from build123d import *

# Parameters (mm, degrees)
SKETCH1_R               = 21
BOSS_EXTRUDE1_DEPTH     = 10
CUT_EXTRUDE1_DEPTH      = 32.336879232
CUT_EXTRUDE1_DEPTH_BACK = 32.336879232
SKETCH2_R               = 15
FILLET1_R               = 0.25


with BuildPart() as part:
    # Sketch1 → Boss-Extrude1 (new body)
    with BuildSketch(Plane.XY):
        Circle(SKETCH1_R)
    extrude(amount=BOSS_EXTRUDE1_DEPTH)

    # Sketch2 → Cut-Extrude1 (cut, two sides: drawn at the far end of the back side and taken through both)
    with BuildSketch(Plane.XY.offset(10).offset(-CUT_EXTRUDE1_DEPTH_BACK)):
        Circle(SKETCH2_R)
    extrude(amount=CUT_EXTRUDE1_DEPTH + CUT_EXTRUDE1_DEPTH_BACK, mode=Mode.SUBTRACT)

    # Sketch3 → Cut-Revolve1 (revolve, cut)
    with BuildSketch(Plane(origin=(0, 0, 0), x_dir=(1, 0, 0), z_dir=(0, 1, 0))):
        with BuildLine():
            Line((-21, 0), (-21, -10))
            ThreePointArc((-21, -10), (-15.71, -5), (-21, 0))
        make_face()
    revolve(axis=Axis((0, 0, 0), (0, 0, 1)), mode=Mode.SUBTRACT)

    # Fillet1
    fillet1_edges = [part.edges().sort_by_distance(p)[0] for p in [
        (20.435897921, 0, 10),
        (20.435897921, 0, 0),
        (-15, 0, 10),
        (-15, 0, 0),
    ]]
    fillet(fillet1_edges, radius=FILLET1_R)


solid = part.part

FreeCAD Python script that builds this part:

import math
import FreeCAD as App
import Part
import Sketcher
Q = App.Units.Quantity


def edges_at(feature, points):
    """Names of the edges that pass closest to the given points."""
    edges = feature.Shape.Edges
    near = lambda p: min(range(len(edges)), key=lambda i: edges[i].distToShape(Part.Vertex(*p))[0])
    return sorted({f"Edge{near(p) + 1}" for p in points})

doc = App.newDocument("Part")
body = doc.addObject("PartDesign::Body", "Body")

# Sketch on XY plane
sketch1 = body.newObject("Sketcher::SketchObject", "Sketch")
sketch1.AttachmentSupport = (doc.getObject("XY_Plane"), [""])
sketch1.MapMode = "FlatFace"
sketch1.addGeometry(Part.Circle(App.Vector(0, 0, 0), App.Vector(0, 0, 1), 21), False)
sketch1.addConstraint([
    Sketcher.Constraint("Coincident", 0, 3, -1, 1),
    Sketcher.Constraint("Diameter", 0, Q("42 mm")),
])
pad1 = body.newObject("PartDesign::Pad", "Pad")
pad1.Profile = sketch1
pad1.Length = 10

# Sketch on XY plane
sketch2 = body.newObject("Sketcher::SketchObject", "Sketch001")
sketch2.AttachmentSupport = (doc.getObject("XY_Plane"), [""])
sketch2.MapMode = "FlatFace"
sketch2.AttachmentOffset = App.Placement(App.Vector(0, 0, 10), App.Rotation())
sketch2.addGeometry(Part.Circle(App.Vector(0, 0, 0), App.Vector(0, 0, 1), 15), False)
sketch2.addConstraint([
    Sketcher.Constraint("Coincident", 0, 3, -1, 1),
    Sketcher.Constraint("Diameter", 0, Q("30 mm")),
])
pocket1 = body.newObject("PartDesign::Pocket", "Pocket")
pocket1.Profile = sketch2
pocket1.Type = "ThroughAll"
pocket1.Midplane = True

# Sketch on XZ plane
sketch3 = body.newObject("Sketcher::SketchObject", "Sketch002")
sketch3.AttachmentSupport = (doc.getObject("XZ_Plane"), [""])
sketch3.MapMode = "FlatFace"
sketch3.addGeometry([
    Part.LineSegment(App.Vector(-21, 0, 0), App.Vector(-21, 10, 0)),
    Part.ArcOfCircle(Part.Circle(App.Vector(-20.717949, 5, 0), App.Vector(0, 0, 1), 5.007949), math.radians(-93.228645), math.radians(93.228645)),
], False)
sketch3.addConstraint([
    Sketcher.Constraint("Coincident", 0, 1, 1, 1),
    Sketcher.Constraint("Coincident", 1, 2, 0, 2),
    Sketcher.Constraint("Vertical", 0),
    Sketcher.Constraint("PointOnObject", 0, 1, -1),
    Sketcher.Constraint("DistanceY", 0, 1, 0, 2, Q("10 mm")),
    Sketcher.Constraint("DistanceX", 0, 1, -1, 1, Q("21 mm")),
    Sketcher.Constraint("Radius", 1, Q("5.007949 mm")),
])
groove = body.newObject("PartDesign::Groove", "Groove")
groove.Profile = sketch3
groove.ReferenceAxis = (sketch3, ["V_Axis"])
groove.Angle = 360
doc.recompute()

fillet = body.newObject("PartDesign::Fillet", "Fillet")
fillet.Base = (groove, edges_at(groove, [
    (20.436, 0, 10),
    (20.436, 0, 0),
    (-15, 0, 10),
    (-15, 0, 0),
]))
fillet.Radius = 0.25

doc.recompute()
